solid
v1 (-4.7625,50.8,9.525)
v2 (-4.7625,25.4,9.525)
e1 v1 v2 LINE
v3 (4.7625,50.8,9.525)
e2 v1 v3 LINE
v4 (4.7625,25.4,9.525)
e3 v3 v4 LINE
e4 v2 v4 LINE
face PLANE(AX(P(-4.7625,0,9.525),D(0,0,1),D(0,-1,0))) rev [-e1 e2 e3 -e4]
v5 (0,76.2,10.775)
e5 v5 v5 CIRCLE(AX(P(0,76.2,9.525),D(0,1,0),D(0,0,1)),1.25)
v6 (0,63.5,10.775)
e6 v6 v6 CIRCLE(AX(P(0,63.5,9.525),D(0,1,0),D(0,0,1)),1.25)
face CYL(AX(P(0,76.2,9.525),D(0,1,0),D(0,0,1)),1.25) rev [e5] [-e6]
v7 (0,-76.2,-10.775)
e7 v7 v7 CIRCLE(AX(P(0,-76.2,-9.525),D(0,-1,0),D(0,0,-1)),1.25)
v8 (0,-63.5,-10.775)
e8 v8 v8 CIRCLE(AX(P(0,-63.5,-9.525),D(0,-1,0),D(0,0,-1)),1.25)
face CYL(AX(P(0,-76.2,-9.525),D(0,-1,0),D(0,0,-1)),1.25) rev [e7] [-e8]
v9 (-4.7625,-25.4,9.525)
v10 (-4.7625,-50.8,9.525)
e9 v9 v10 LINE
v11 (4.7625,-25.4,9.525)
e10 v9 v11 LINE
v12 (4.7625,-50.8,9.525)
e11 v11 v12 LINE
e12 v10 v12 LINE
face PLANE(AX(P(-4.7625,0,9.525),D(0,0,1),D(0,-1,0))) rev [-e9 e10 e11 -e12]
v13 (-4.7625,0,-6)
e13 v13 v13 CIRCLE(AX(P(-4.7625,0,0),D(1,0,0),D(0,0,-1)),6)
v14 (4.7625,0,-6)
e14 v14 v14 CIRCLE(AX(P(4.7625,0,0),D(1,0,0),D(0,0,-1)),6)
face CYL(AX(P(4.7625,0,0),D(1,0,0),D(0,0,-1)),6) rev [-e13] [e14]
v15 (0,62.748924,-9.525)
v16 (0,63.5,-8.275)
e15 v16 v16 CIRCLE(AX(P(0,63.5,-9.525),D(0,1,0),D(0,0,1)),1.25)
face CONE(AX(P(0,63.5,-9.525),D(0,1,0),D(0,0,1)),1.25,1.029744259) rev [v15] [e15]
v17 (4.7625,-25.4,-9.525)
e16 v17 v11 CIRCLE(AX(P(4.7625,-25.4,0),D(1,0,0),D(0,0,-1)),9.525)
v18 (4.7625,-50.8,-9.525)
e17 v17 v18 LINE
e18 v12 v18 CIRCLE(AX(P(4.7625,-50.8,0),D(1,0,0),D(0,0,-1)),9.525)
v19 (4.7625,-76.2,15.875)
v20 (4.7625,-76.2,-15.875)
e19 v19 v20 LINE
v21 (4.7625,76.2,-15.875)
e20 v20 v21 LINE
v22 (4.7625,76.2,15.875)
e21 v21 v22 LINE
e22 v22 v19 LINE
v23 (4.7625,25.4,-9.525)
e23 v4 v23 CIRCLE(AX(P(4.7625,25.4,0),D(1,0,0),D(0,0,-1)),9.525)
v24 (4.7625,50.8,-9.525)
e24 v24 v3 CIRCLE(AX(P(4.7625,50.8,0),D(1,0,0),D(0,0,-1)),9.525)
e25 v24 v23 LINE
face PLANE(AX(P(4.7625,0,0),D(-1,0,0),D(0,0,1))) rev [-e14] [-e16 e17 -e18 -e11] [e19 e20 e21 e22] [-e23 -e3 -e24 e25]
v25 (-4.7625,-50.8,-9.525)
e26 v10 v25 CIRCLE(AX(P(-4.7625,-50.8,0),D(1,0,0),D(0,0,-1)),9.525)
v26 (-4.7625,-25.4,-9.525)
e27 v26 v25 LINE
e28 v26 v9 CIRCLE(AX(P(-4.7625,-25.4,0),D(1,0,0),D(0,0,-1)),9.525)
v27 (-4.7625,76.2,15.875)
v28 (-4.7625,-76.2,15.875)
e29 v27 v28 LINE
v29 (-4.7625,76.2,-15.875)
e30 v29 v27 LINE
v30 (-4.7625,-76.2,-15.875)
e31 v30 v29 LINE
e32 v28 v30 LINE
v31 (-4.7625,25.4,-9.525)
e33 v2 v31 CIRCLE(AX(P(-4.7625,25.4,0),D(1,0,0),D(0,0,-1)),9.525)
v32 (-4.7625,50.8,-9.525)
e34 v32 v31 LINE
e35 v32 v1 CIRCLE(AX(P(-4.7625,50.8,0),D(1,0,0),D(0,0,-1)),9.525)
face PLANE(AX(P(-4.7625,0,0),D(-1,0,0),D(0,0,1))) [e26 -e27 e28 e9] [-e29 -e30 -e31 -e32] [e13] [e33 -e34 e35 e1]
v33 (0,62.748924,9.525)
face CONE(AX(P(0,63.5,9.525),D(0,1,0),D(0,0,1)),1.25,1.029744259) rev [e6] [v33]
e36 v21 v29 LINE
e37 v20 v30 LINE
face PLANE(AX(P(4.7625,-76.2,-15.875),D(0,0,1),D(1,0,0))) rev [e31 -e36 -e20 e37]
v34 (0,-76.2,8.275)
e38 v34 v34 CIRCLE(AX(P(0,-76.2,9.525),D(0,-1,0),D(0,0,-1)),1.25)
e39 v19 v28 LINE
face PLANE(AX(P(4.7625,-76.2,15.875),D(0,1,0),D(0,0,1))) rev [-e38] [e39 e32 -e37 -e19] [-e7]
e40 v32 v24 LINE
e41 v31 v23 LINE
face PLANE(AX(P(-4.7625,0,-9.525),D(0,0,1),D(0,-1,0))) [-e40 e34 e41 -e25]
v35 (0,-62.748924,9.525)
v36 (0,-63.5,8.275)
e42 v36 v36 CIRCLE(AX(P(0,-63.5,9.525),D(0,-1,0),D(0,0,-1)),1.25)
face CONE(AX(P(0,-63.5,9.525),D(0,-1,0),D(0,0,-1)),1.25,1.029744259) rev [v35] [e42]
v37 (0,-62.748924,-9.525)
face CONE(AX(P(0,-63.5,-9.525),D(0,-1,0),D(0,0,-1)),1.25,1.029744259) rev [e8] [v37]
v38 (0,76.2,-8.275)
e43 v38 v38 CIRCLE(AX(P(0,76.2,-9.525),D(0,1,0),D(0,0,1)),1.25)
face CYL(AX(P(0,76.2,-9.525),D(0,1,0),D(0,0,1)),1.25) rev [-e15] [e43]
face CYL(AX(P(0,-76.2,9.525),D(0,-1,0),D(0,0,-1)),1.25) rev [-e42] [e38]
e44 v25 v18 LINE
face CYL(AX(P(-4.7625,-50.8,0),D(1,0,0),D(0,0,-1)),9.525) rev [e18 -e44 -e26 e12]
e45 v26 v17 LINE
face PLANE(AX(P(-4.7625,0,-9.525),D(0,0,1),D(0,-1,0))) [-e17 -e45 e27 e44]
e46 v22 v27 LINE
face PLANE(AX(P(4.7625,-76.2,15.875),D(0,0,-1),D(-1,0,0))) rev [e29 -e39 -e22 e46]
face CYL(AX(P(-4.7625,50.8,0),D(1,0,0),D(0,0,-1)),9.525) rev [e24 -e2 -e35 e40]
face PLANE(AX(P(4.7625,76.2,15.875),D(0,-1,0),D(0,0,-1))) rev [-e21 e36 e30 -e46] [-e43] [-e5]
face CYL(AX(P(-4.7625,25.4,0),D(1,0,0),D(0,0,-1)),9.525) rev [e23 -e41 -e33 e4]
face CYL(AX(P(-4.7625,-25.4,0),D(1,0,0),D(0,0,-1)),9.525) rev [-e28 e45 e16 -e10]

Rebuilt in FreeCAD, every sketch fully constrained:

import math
import FreeCAD as App
import Part
import Sketcher

V = App.Vector
Q = App.Units.Quantity

doc = App.newDocument("Part")
body = doc.addObject("PartDesign::Body", "Body")

# Sketch on YZ plane
sketch1 = body.newObject("Sketcher::SketchObject", "Sketch")
sketch1.AttachmentSupport = (doc.getObject("YZ_Plane"), [""])
sketch1.MapMode = "FlatFace"
sketch1.addGeometry([
    Part.LineSegment(V(76, 16, 0), V(-76, 16, 0)),
    Part.LineSegment(V(-76, 16, 0), V(-76, -16, 0)),
    Part.LineSegment(V(-76, -16, 0), V(76, -16, 0)),
    Part.LineSegment(V(76, -16, 0), V(76, 16, 0)),
], False)
sketch1.addConstraint([
    Sketcher.Constraint("Coincident", 0, 2, 1, 1),
    Sketcher.Constraint("Coincident", 1, 2, 2, 1),
    Sketcher.Constraint("Coincident", 2, 2, 3, 1),
    Sketcher.Constraint("Coincident", 3, 2, 0, 1),
    Sketcher.Constraint("Horizontal", 0),
    Sketcher.Constraint("Vertical", 1),
    Sketcher.Constraint("Horizontal", 2),
    Sketcher.Constraint("Vertical", 3),
    Sketcher.Constraint("Symmetric", 0, 2, 2, 2, -1, 1),
    Sketcher.Constraint("DistanceX", 0, 2, 0, 1, Q("6 in")),
    Sketcher.Constraint("DistanceY", 1, 2, 1, 1, Q("1.25 in")),
])
pad1 = body.newObject("PartDesign::Pad", "Pad")
pad1.Profile = sketch1
pad1.Length = Q("0.375 in")
pad1.Midplane = True

# Sketch on YZ plane
sketch2 = body.newObject("Sketcher::SketchObject", "Sketch001")
sketch2.AttachmentSupport = (doc.getObject("YZ_Plane"), [""])
sketch2.MapMode = "FlatFace"
sketch2.addGeometry([
    Part.LineSegment(V(62.7, -9.5, 0), V(76.2, -9.5, 0)),
    Part.LineSegment(V(76.2, -9.5, 0), V(76.2, -8.3, 0)),
    Part.LineSegment(V(76.2, -8.3, 0), V(63.5, -8.3, 0)),
    Part.LineSegment(V(63.5, -8.3, 0), V(62.7, -9.5, 0)),
], False)
sketch2.addGeometry(Part.LineSegment(V(76.2, -9.5, 0), V(62.7, -9.5, 0)), True)  # axis
sketch2.addConstraint([
    Sketcher.Constraint("Coincident", 0, 2, 1, 1),
    Sketcher.Constraint("Coincident", 1, 2, 2, 1),
    Sketcher.Constraint("Coincident", 2, 2, 3, 1),
    Sketcher.Constraint("Coincident", 3, 2, 0, 1),
    Sketcher.Constraint("Horizontal", 0),
    Sketcher.Constraint("Vertical", 1),
    Sketcher.Constraint("Horizontal", 2),
    Sketcher.Constraint("Horizontal", 4),
    Sketcher.Constraint("Coincident", 4, 1, 0, 2),
    Sketcher.Constraint("Equal", 0, 4),
    Sketcher.Constraint("DistanceX", 2, 2, 2, 1, Q("0.5 in")),
    Sketcher.Constraint("DistanceX", -1, 1, 0, 2, Q("3 in")),
    Sketcher.Constraint("Angle", 3, Q("-121 deg")),
    Sketcher.Constraint("DistanceY", 0, 2, -1, 1, Q("0.375 in")),
    Sketcher.Constraint("DistanceY", 1, 1, 1, 2, Q("1.25 mm")),
])
groove = body.newObject("PartDesign::Groove", "Groove")
groove.Profile = sketch2
groove.ReferenceAxis = (sketch2, ["Axis0"])
groove.Angle = 360
doc.recompute()

linearpattern = body.newObject("PartDesign::LinearPattern", "LinearPattern")
linearpattern.Originals = [groove]
linearpattern.Direction = (doc.getObject("Z_Axis"), [""])
linearpattern.Mode = "offset"
linearpattern.Offset = Q("0.75 in")
linearpattern.Occurrences = 2
body.Tip = linearpattern
doc.recompute()

mirrored = body.newObject("PartDesign::Mirrored", "Mirrored")
mirrored.Originals = [groove]
mirrored.MirrorPlane = (doc.getObject("XZ_Plane"), [""])
body.Tip = mirrored

# Sketch on YZ plane
sketch3 = body.newObject("Sketcher::SketchObject", "Sketch002")
sketch3.AttachmentSupport = (doc.getObject("YZ_Plane"), [""])
sketch3.MapMode = "FlatFace"
sketch3.addGeometry([
    Part.LineSegment(V(-76.2, 9.5, 0), V(-62.7, 9.5, 0)),
    Part.LineSegment(V(-62.7, 9.5, 0), V(-63.5, 10.8, 0)),
    Part.LineSegment(V(-63.5, 10.8, 0), V(-76.2, 10.8, 0)),
    Part.LineSegment(V(-76.2, 10.8, 0), V(-76.2, 9.5, 0)),
], False)
sketch3.addGeometry(Part.LineSegment(V(-62.7, 9.5, 0), V(-76.2, 9.5, 0)), True)  # axis
sketch3.addConstraint([
    Sketcher.Constraint("Coincident", 0, 2, 1, 1),
    Sketcher.Constraint("Coincident", 1, 2, 2, 1),
    Sketcher.Constraint("Coincident", 2, 2, 3, 1),
    Sketcher.Constraint("Coincident", 3, 2, 0, 1),
    Sketcher.Constraint("Horizontal", 0),
    Sketcher.Constraint("Horizontal", 2),
    Sketcher.Constraint("Vertical", 3),
    Sketcher.Constraint("Horizontal", 4),
    Sketcher.Constraint("Coincident", 4, 1, 0, 2),
    Sketcher.Constraint("Vertical", 2, 2, 4, 2),
    Sketcher.Constraint("DistanceX", 2, 2, 2, 1, Q("0.5 in")),
    Sketcher.Constraint("DistanceX", 2, 2, -1, 1, Q("3 in")),
    Sketcher.Constraint("Angle", 1, Q("121 deg")),
    Sketcher.Constraint("DistanceY", -1, 1, 0, 2, Q("0.375 in")),
    Sketcher.Constraint("DistanceY", 3, 2, 3, 1, Q("1.25 mm")),
])
groove2 = body.newObject("PartDesign::Groove", "Groove001")
groove2.Profile = sketch3
groove2.ReferenceAxis = (sketch3, ["Axis0"])
groove2.Angle = 360

# Sketch on YZ plane
sketch4 = body.newObject("Sketcher::SketchObject", "Sketch003")
sketch4.AttachmentSupport = (doc.getObject("YZ_Plane"), [""])
sketch4.MapMode = "FlatFace"
sketch4.AttachmentOffset = App.Placement(V(0, 0, 0.1875 * 25.4), App.Rotation())
sketch4.addGeometry(Part.Circle(V(0, 0, 0), V(0, 0, 1), 6), False)
sketch4.addConstraint([
    Sketcher.Constraint("Coincident", 0, 3, -1, 1),
    Sketcher.Constraint("Diameter", 0, Q("12 mm")),
])
doc.recompute()
hole = body.newObject("PartDesign::Hole", "Hole")
hole.Profile = sketch4
hole.ThreadType = "None"
hole.Diameter = 12
hole.DepthType = "ThroughAll"

# Sketch on YZ plane
sketch5 = body.newObject("Sketcher::SketchObject", "Sketch004")
sketch5.AttachmentSupport = (doc.getObject("YZ_Plane"), [""])
sketch5.MapMode = "FlatFace"
sketch5.AttachmentOffset = App.Placement(V(0, 0, 0.1875 * 25.4), App.Rotation())
sketch5.addGeometry([
    Part.LineSegment(V(25, -10, 0), V(51, -10, 0)),  # 0
    Part.ArcOfCircle(Part.Circle(V(51, 0, 0), V(0, 0, 1), 10), math.radians(-90), math.radians(90)),  # 1
    Part.LineSegment(V(51, 10, 0), V(25, 10, 0)),  # 2
    Part.ArcOfCircle(Part.Circle(V(25, 0, 0), V(0, 0, 1), 10), math.radians(90), math.radians(270)),  # 3
    Part.LineSegment(V(-51, -10, 0), V(-25, -10, 0)),  # 4
    Part.ArcOfCircle(Part.Circle(V(-25, 0, 0), V(0, 0, 1), 10), math.radians(-90), math.radians(90)),  # 5
    Part.LineSegment(V(-25, 10, 0), V(-51, 10, 0)),  # 6
    Part.ArcOfCircle(Part.Circle(V(-51, 0, 0), V(0, 0, 1), 10), math.radians(90), math.radians(270)),  # 7
], False)
sketch5.addConstraint([
    Sketcher.Constraint("Tangent", 0, 2, 1, 1),
    Sketcher.Constraint("Tangent", 1, 2, 2, 1),
    Sketcher.Constraint("Tangent", 2, 2, 3, 1),
    Sketcher.Constraint("Tangent", 3, 2, 0, 1),
    Sketcher.Constraint("Tangent", 4, 2, 5, 1),
    Sketcher.Constraint("Tangent", 5, 2, 6, 1),
    Sketcher.Constraint("Tangent", 6, 2, 7, 1),
    Sketcher.Constraint("Tangent", 7, 2, 4, 1),
    Sketcher.Constraint("Horizontal", 0),
    Sketcher.Constraint("Horizontal", 2),
    Sketcher.Constraint("Horizontal", 4),
    Sketcher.Constraint("Horizontal", 6),
    Sketcher.Constraint("Equal", 3, 5),
    Sketcher.Constraint("Symmetric", 3, 3, 5, 3, -1, 1),
    Sketcher.Constraint("Symmetric", 1, 3, 7, 3, -2),
    Sketcher.Constraint("DistanceX", 0, 1, 0, 2, Q("1 in")),
    Sketcher.Constraint("DistanceX", -1, 1, 1, 3, Q("2 in")),
    Sketcher.Constraint("Radius", 1, Q("0.375 in")),
])
pocket1 = body.newObject("PartDesign::Pocket", "Pocket")
pocket1.Profile = sketch5
pocket1.Type = "ThroughAll"

doc.recompute()
